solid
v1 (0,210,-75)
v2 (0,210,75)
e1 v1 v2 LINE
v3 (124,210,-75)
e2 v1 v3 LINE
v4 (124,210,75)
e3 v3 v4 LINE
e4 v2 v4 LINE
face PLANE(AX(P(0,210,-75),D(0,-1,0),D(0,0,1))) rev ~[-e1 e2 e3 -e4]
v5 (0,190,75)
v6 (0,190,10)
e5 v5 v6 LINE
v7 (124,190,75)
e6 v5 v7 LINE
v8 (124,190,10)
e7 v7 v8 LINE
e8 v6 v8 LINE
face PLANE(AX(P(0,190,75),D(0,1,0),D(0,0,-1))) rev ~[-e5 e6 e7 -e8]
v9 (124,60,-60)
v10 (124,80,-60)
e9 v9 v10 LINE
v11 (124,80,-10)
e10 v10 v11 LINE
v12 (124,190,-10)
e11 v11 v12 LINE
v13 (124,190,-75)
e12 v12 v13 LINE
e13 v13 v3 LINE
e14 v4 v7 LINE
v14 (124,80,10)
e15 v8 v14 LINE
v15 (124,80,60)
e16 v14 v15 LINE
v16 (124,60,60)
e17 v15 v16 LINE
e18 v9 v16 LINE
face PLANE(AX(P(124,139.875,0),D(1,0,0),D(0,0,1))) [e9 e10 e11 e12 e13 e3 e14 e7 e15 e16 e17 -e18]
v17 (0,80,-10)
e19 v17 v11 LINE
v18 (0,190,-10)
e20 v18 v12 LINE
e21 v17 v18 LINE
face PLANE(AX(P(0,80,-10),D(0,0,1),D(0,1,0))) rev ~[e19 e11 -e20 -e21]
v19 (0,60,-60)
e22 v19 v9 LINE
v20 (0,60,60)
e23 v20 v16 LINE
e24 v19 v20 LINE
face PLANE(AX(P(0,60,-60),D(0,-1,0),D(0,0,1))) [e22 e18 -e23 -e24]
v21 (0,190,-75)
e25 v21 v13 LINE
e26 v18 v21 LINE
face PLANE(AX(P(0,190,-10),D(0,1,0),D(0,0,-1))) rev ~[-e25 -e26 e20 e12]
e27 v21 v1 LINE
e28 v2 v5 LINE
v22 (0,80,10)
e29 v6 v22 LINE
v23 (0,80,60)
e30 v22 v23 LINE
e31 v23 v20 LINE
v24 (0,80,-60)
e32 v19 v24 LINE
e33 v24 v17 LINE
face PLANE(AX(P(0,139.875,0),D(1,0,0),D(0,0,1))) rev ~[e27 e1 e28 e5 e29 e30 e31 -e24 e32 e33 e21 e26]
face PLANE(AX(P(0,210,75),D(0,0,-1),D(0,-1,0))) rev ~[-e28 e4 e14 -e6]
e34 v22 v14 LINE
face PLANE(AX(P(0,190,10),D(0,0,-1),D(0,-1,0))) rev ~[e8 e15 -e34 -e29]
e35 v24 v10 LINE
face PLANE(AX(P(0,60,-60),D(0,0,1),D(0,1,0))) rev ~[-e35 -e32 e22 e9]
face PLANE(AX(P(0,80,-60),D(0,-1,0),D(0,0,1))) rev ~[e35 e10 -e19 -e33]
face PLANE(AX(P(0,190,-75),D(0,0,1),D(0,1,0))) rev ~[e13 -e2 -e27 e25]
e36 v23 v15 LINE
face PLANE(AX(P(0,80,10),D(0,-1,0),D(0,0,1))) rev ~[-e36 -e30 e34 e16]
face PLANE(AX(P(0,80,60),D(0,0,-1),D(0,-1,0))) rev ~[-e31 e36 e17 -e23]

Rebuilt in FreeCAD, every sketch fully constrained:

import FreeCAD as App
import Part
import Sketcher

V = App.Vector
Q = App.Units.Quantity

doc = App.newDocument("Part")
body = doc.addObject("PartDesign::Body", "Body")

# Sketch on YZ plane
sketch1 = body.newObject("Sketcher::SketchObject", "Sketch")
sketch1.AttachmentSupport = (doc.getObject("YZ_Plane"), [""])
sketch1.MapMode = "FlatFace"
sketch1.addGeometry(Part.LineSegment(V(60, 60, 0), V(60, -60, 0)), False)
sketch1.addGeometry(Part.LineSegment(V(60, -60, 0), V(80, -60, 0)), False)
sketch1.addGeometry(Part.LineSegment(V(80, -60, 0), V(80, -10, 0)), False)
sketch1.addGeometry(Part.LineSegment(V(80, -10, 0), V(190, -10, 0)), False)
sketch1.addGeometry(Part.LineSegment(V(190, -10, 0), V(190, -75, 0)), False)
sketch1.addGeometry(Part.LineSegment(V(190, -75, 0), V(210, -75, 0)), False)
sketch1.addGeometry(Part.LineSegment(V(210, -75, 0), V(210, 75, 0)), False)
sketch1.addGeometry(Part.LineSegment(V(210, 75, 0), V(190, 75, 0)), False)
sketch1.addGeometry(Part.LineSegment(V(190, 75, 0), V(190, 10, 0)), False)
sketch1.addGeometry(Part.LineSegment(V(190, 10, 0), V(80, 10, 0)), False)
sketch1.addGeometry(Part.LineSegment(V(80, 10, 0), V(80, 60, 0)), False)
sketch1.addGeometry(Part.LineSegment(V(80, 60, 0), V(60, 60, 0)), False)
sketch1.addConstraint(Sketcher.Constraint("Coincident", 0, 2, 1, 1))
sketch1.addConstraint(Sketcher.Constraint("Coincident", 1, 2, 2, 1))
sketch1.addConstraint(Sketcher.Constraint("Coincident", 2, 2, 3, 1))
sketch1.addConstraint(Sketcher.Constraint("Coincident", 3, 2, 4, 1))
sketch1.addConstraint(Sketcher.Constraint("Coincident", 4, 2, 5, 1))
sketch1.addConstraint(Sketcher.Constraint("Coincident", 5, 2, 6, 1))
sketch1.addConstraint(Sketcher.Constraint("Coincident", 6, 2, 7, 1))
sketch1.addConstraint(Sketcher.Constraint("Coincident", 7, 2, 8, 1))
sketch1.addConstraint(Sketcher.Constraint("Coincident", 8, 2, 9, 1))
sketch1.addConstraint(Sketcher.Constraint("Coincident", 9, 2, 10, 1))
sketch1.addConstraint(Sketcher.Constraint("Coincident", 10, 2, 11, 1))
sketch1.addConstraint(Sketcher.Constraint("Coincident", 11, 2, 0, 1))
sketch1.addConstraint(Sketcher.Constraint("Vertical", 0))
sketch1.addConstraint(Sketcher.Constraint("Horizontal", 1))
sketch1.addConstraint(Sketcher.Constraint("Vertical", 2))
sketch1.addConstraint(Sketcher.Constraint("Horizontal", 3))
sketch1.addConstraint(Sketcher.Constraint("Vertical", 4))
sketch1.addConstraint(Sketcher.Constraint("Horizontal", 5))
sketch1.addConstraint(Sketcher.Constraint("Vertical", 6))
sketch1.addConstraint(Sketcher.Constraint("Horizontal", 7))
sketch1.addConstraint(Sketcher.Constraint("Vertical", 8))
sketch1.addConstraint(Sketcher.Constraint("Horizontal", 9))
sketch1.addConstraint(Sketcher.Constraint("Vertical", 10))
sketch1.addConstraint(Sketcher.Constraint("Horizontal", 11))
sketch1.addConstraint(Sketcher.Constraint("Symmetric", 4, 2, 7, 2, -1))
sketch1.addConstraint(Sketcher.Constraint("Symmetric", 2, 2, 9, 2, -1))
sketch1.addConstraint(Sketcher.Constraint("Equal", 1, 5))
sketch1.addConstraint(Sketcher.Constraint("Equal", 2, 10))
sketch1.addConstraint(Sketcher.Constraint("DistanceX", -1, 1, 0, 2, Q("60 mm")))
sketch1.addConstraint(Sketcher.Constraint("DistanceY", 0, 2, -1, 1, Q("60 mm")))
sketch1.addConstraint(Sketcher.Constraint("DistanceX", -1, 1, 3, 2, Q("190 mm")))
sketch1.addConstraint(Sketcher.Constraint("DistanceX", -1, 1, 5, 2, Q("210 mm")))
sketch1.addConstraint(Sketcher.Constraint("DistanceY", 1, 2, 6, 2, Q("135 mm")))
sketch1.addConstraint(Sketcher.Constraint("DistanceY", 2, 1, 2, 2, Q("50 mm")))
pad1 = body.newObject("PartDesign::Pad", "Pad")
pad1.Profile = sketch1
pad1.Length = 124

doc.recompute()
